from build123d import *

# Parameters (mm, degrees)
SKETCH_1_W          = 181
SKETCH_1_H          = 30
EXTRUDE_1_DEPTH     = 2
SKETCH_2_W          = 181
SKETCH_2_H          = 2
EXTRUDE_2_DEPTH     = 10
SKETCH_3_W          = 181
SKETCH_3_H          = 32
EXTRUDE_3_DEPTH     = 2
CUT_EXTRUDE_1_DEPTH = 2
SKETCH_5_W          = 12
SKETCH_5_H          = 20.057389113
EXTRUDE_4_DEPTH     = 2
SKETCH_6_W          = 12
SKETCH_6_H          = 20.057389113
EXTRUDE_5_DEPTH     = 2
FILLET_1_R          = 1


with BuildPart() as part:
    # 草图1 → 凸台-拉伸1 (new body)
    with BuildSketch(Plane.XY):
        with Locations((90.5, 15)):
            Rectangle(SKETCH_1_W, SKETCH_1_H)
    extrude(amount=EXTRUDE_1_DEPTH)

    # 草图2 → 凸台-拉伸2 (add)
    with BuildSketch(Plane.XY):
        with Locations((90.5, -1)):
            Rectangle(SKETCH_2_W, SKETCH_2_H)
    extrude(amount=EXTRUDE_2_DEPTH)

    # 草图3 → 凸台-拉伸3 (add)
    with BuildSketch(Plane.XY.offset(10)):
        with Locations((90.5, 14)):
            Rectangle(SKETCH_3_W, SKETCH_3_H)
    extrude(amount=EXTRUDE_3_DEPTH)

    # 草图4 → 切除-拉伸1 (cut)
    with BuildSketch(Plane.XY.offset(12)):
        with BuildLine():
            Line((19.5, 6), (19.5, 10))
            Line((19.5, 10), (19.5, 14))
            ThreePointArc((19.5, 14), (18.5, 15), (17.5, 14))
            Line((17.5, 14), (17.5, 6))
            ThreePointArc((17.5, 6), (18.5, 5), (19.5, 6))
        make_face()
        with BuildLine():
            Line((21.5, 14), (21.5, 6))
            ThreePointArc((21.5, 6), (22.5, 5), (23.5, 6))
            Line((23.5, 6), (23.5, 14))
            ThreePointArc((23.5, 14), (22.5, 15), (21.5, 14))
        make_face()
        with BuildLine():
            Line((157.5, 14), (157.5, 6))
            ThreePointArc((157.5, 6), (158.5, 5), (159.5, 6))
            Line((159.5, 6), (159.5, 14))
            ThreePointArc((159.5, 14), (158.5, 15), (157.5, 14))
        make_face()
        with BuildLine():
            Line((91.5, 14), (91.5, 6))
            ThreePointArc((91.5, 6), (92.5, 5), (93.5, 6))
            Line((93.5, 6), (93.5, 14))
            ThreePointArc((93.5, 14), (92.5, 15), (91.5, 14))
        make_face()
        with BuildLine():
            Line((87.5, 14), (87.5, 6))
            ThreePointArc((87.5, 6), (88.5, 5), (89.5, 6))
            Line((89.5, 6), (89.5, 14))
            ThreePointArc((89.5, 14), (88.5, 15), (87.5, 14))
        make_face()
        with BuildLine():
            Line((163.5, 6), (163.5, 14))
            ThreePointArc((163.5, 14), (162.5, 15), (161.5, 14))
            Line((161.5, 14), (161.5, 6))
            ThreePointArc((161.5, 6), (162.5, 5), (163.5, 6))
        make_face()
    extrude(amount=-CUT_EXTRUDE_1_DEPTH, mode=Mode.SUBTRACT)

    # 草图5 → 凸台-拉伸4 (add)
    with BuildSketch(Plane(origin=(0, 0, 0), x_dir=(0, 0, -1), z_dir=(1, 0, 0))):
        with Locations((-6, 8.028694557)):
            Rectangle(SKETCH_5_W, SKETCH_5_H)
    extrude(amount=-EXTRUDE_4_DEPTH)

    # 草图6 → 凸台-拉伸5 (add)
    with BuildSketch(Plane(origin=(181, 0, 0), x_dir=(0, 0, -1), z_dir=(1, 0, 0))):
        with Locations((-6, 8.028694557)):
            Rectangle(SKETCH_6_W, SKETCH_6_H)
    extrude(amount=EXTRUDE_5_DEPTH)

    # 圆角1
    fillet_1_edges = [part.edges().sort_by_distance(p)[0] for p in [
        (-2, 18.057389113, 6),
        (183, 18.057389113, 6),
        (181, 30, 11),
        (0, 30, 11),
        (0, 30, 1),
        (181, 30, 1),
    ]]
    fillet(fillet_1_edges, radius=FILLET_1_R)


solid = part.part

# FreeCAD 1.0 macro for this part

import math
import FreeCAD as App
import Part
import Sketcher
from FreeCAD import Vector
Q = App.Units.Quantity


def edges_at(feature, points):
    """Names of the edges that pass closest to the given points."""
    edges = feature.Shape.Edges
    near = lambda p: min(range(len(edges)), key=lambda i: edges[i].distToShape(Part.Vertex(*p))[0])
    return sorted({f"Edge{near(p) + 1}" for p in points})

doc = App.newDocument("Part")
body = doc.addObject("PartDesign::Body", "Body")

# Sketch on XY plane
sketch1 = body.newObject("Sketcher::SketchObject", "Sketch")
sketch1.AttachmentSupport = (doc.getObject("XY_Plane"), [""])
sketch1.MapMode = "FlatFace"
sketch1.addGeometry(Part.LineSegment(Vector(0, 30, 0), Vector(0, 0, 0)), False)
sketch1.addGeometry(Part.LineSegment(Vector(0, 0, 0), Vector(181, 0, 0)), False)
sketch1.addGeometry(Part.LineSegment(Vector(181, 0, 0), Vector(181, 30, 0)), False)
sketch1.addGeometry(Part.LineSegment(Vector(181, 30, 0), Vector(0, 30, 0)), False)
sketch1.addConstraint(Sketcher.Constraint("Coincident", 0, 2, 1, 1))
sketch1.addConstraint(Sketcher.Constraint("Coincident", 1, 2, 2, 1))
sketch1.addConstraint(Sketcher.Constraint("Coincident", 2, 2, 3, 1))
sketch1.addConstraint(Sketcher.Constraint("Coincident", 3, 2, 0, 1))
sketch1.addConstraint(Sketcher.Constraint("Vertical", 0))
sketch1.addConstraint(Sketcher.Constraint("Horizontal", 1))
sketch1.addConstraint(Sketcher.Constraint("Vertical", 2))
sketch1.addConstraint(Sketcher.Constraint("Horizontal", 3))
sketch1.addConstraint(Sketcher.Constraint("Coincident", 0, 2, -1, 1))
sketch1.addConstraint(Sketcher.Constraint("DistanceX", 1, 1, 1, 2, Q("181 mm")))
sketch1.addConstraint(Sketcher.Constraint("DistanceY", 0, 2, 0, 1, Q("30 mm")))
pad1 = body.newObject("PartDesign::Pad", "Pad")
pad1.Profile = sketch1
pad1.Length = 2

# Sketch on XY plane
sketch2 = body.newObject("Sketcher::SketchObject", "Sketch001")
sketch2.AttachmentSupport = (doc.getObject("XY_Plane"), [""])
sketch2.MapMode = "FlatFace"
sketch2.addGeometry(Part.LineSegment(Vector(0, 0, 0), Vector(0, -2, 0)), False)
sketch2.addGeometry(Part.LineSegment(Vector(0, -2, 0), Vector(181, -2, 0)), False)
sketch2.addGeometry(Part.LineSegment(Vector(181, -2, 0), Vector(181, 0, 0)), False)
sketch2.addGeometry(Part.LineSegment(Vector(181, 0, 0), Vector(0, 0, 0)), False)
sketch2.addConstraint(Sketcher.Constraint("Coincident", 0, 2, 1, 1))
sketch2.addConstraint(Sketcher.Constraint("Coincident", 1, 2, 2, 1))
sketch2.addConstraint(Sketcher.Constraint("Coincident", 2, 2, 3, 1))
sketch2.addConstraint(Sketcher.Constraint("Coincident", 3, 2, 0, 1))
sketch2.addConstraint(Sketcher.Constraint("Vertical", 0))
sketch2.addConstraint(Sketcher.Constraint("Horizontal", 1))
sketch2.addConstraint(Sketcher.Constraint("Vertical", 2))
sketch2.addConstraint(Sketcher.Constraint("Horizontal", 3))
sketch2.addConstraint(Sketcher.Constraint("Coincident", 3, 2, -1, 1))
sketch2.addConstraint(Sketcher.Constraint("DistanceX", 1, 1, 1, 2, Q("181 mm")))
sketch2.addConstraint(Sketcher.Constraint("DistanceY", 0, 2, 0, 1, Q("2 mm")))
pad2 = body.newObject("PartDesign::Pad", "Pad001")
pad2.Profile = sketch2
pad2.Length = 10

# Sketch on XY plane
sketch3 = body.newObject("Sketcher::SketchObject", "Sketch002")
sketch3.AttachmentSupport = (doc.getObject("XY_Plane"), [""])
sketch3.MapMode = "FlatFace"
sketch3.AttachmentOffset = App.Placement(Vector(0, 0, 10), App.Rotation())
sketch3.addGeometry(Part.LineSegment(Vector(0, 30, 0), Vector(0, -2, 0)), False)
sketch3.addGeometry(Part.LineSegment(Vector(0, -2, 0), Vector(181, -2, 0)), False)
sketch3.addGeometry(Part.LineSegment(Vector(181, -2, 0), Vector(181, 30, 0)), False)
sketch3.addGeometry(Part.LineSegment(Vector(181, 30, 0), Vector(0, 30, 0)), False)
sketch3.addConstraint(Sketcher.Constraint("Coincident", 0, 2, 1, 1))
sketch3.addConstraint(Sketcher.Constraint("Coincident", 1, 2, 2, 1))
sketch3.addConstraint(Sketcher.Constraint("Coincident", 2, 2, 3, 1))
sketch3.addConstraint(Sketcher.Constraint("Coincident", 3, 2, 0, 1))
sketch3.addConstraint(Sketcher.Constraint("Vertical", 0))
sketch3.addConstraint(Sketcher.Constraint("Horizontal", 1))
sketch3.addConstraint(Sketcher.Constraint("Vertical", 2))
sketch3.addConstraint(Sketcher.Constraint("Horizontal", 3))
sketch3.addConstraint(Sketcher.Constraint("PointOnObject", 0, 2, -2))
sketch3.addConstraint(Sketcher.Constraint("DistanceX", 1, 1, 1, 2, Q("181 mm")))
sketch3.addConstraint(Sketcher.Constraint("DistanceY", 0, 2, 0, 1, Q("32 mm")))
sketch3.addConstraint(Sketcher.Constraint("DistanceY", 0, 2, -1, 1, Q("2 mm")))
pad3 = body.newObject("PartDesign::Pad", "Pad002")
pad3.Profile = sketch3
pad3.Length = 2

# Sketch on XY plane
sketch4 = body.newObject("Sketcher::SketchObject", "Sketch003")
sketch4.AttachmentSupport = (doc.getObject("XY_Plane"), [""])
sketch4.MapMode = "FlatFace"
sketch4.AttachmentOffset = App.Placement(Vector(0, 0, 12), App.Rotation())
sketch4.addGeometry(Part.LineSegment(Vector(19.5, 6, 0), Vector(19.5, 14, 0)), False)
sketch4.addGeometry(Part.ArcOfCircle(Part.Circle(Vector(18.5, 14, 0), Vector(0, 0, 1), 1), math.radians(0), math.radians(180)), False)
sketch4.addGeometry(Part.LineSegment(Vector(17.5, 14, 0), Vector(17.5, 6, 0)), False)
sketch4.addGeometry(Part.ArcOfCircle(Part.Circle(Vector(18.5, 6, 0), Vector(0, 0, 1), 1), math.radians(180), math.radians(360)), False)
sketch4.addGeometry(Part.LineSegment(Vector(21.5, 14, 0), Vector(21.5, 6, 0)), False)
sketch4.addGeometry(Part.ArcOfCircle(Part.Circle(Vector(22.5, 6, 0), Vector(0, 0, 1), 1), math.radians(180), math.radians(360)), False)
sketch4.addGeometry(Part.LineSegment(Vector(23.5, 6, 0), Vector(23.5, 14, 0)), False)
sketch4.addGeometry(Part.ArcOfCircle(Part.Circle(Vector(22.5, 14, 0), Vector(0, 0, 1), 1), math.radians(0), math.radians(180)), False)
sketch4.addGeometry(Part.LineSegment(Vector(157.5, 14, 0), Vector(157.5, 6, 0)), False)
sketch4.addGeometry(Part.ArcOfCircle(Part.Circle(Vector(158.5, 6, 0), Vector(0, 0, 1), 1), math.radians(180), math.radians(360)), False)
sketch4.addGeometry(Part.LineSegment(Vector(159.5, 6, 0), Vector(159.5, 14, 0)), False)
sketch4.addGeometry(Part.ArcOfCircle(Part.Circle(Vector(158.5, 14, 0), Vector(0, 0, 1), 1), math.radians(0), math.radians(180)), False)
sketch4.addGeometry(Part.LineSegment(Vector(91.5, 14, 0), Vector(91.5, 6, 0)), False)
sketch4.addGeometry(Part.ArcOfCircle(Part.Circle(Vector(92.5, 6, 0), Vector(0, 0, 1), 1), math.radians(180), math.radians(360)), False)
sketch4.addGeometry(Part.LineSegment(Vector(93.5, 6, 0), Vector(93.5, 14, 0)), False)
sketch4.addGeometry(Part.ArcOfCircle(Part.Circle(Vector(92.5, 14, 0), Vector(0, 0, 1), 1), math.radians(0), math.radians(180)), False)
sketch4.addGeometry(Part.LineSegment(Vector(87.5, 14, 0), Vector(87.5, 6, 0)), False)
sketch4.addGeometry(Part.ArcOfCircle(Part.Circle(Vector(88.5, 6, 0), Vector(0, 0, 1), 1), math.radians(180), math.radians(360)), False)
sketch4.addGeometry(Part.LineSegment(Vector(89.5, 6, 0), Vector(89.5, 14, 0)), False)
sketch4.addGeometry(Part.ArcOfCircle(Part.Circle(Vector(88.5, 14, 0), Vector(0, 0, 1), 1), math.radians(0), math.radians(180)), False)
sketch4.addGeometry(Part.LineSegment(Vector(163.5, 6, 0), Vector(163.5, 14, 0)), False)
sketch4.addGeometry(Part.ArcOfCircle(Part.Circle(Vector(162.5, 14, 0), Vector(0, 0, 1), 1), math.radians(0), math.radians(180)), False)
sketch4.addGeometry(Part.LineSegment(Vector(161.5, 14, 0), Vector(161.5, 6, 0)), False)
sketch4.addGeometry(Part.ArcOfCircle(Part.Circle(Vector(162.5, 6, 0), Vector(0, 0, 1), 1), math.radians(180), math.radians(360)), False)
sketch4.addConstraint(Sketcher.Constraint("Tangent", 0, 2, 1, 1))
sketch4.addConstraint(Sketcher.Constraint("Tangent", 1, 2, 2, 1))
sketch4.addConstraint(Sketcher.Constraint("Tangent", 2, 2, 3, 1))
sketch4.addConstraint(Sketcher.Constraint("Tangent", 3, 2, 0, 1))
sketch4.addConstraint(Sketcher.Constraint("Tangent", 4, 2, 5, 1))
sketch4.addConstraint(Sketcher.Constraint("Tangent", 5, 2, 6, 1))
sketch4.addConstraint(Sketcher.Constraint("Tangent", 6, 2, 7, 1))
sketch4.addConstraint(Sketcher.Constraint("Tangent", 7, 2, 4, 1))
sketch4.addConstraint(Sketcher.Constraint("Tangent", 8, 2, 9, 1))
sketch4.addConstraint(Sketcher.Constraint("Tangent", 9, 2, 10, 1))
sketch4.addConstraint(Sketcher.Constraint("Tangent", 10, 2, 11, 1))
sketch4.addConstraint(Sketcher.Constraint("Tangent", 11, 2, 8, 1))
sketch4.addConstraint(Sketcher.Constraint("Tangent", 12, 2, 13, 1))
sketch4.addConstraint(Sketcher.Constraint("Tangent", 13, 2, 14, 1))
sketch4.addConstraint(Sketcher.Constraint("Tangent", 14, 2, 15, 1))
sketch4.addConstraint(Sketcher.Constraint("Tangent", 15, 2, 12, 1))
sketch4.addConstraint(Sketcher.Constraint("Tangent", 16, 2, 17, 1))
sketch4.addConstraint(Sketcher.Constraint("Tangent", 17, 2, 18, 1))
sketch4.addConstraint(Sketcher.Constraint("Tangent", 18, 2, 19, 1))
sketch4.addConstraint(Sketcher.Constraint("Tangent", 19, 2, 16, 1))
sketch4.addConstraint(Sketcher.Constraint("Tangent", 20, 2, 21, 1))
sketch4.addConstraint(Sketcher.Constraint("Tangent", 21, 2, 22, 1))
sketch4.addConstraint(Sketcher.Constraint("Tangent", 22, 2, 23, 1))
sketch4.addConstraint(Sketcher.Constraint("Tangent", 23, 2, 20, 1))
sketch4.addConstraint(Sketcher.Constraint("Vertical", 0))
sketch4.addConstraint(Sketcher.Constraint("Vertical", 2))
sketch4.addConstraint(Sketcher.Constraint("Vertical", 4))
sketch4.addConstraint(Sketcher.Constraint("Vertical", 6))
sketch4.addConstraint(Sketcher.Constraint("Vertical", 8))
sketch4.addConstraint(Sketcher.Constraint("Vertical", 10))
sketch4.addConstraint(Sketcher.Constraint("Vertical", 12))
sketch4.addConstraint(Sketcher.Constraint("Vertical", 14))
sketch4.addConstraint(Sketcher.Constraint("Vertical", 16))
sketch4.addConstraint(Sketcher.Constraint("Vertical", 18))
sketch4.addConstraint(Sketcher.Constraint("Vertical", 20))
sketch4.addConstraint(Sketcher.Constraint("Vertical", 22))
sketch4.addConstraint(Sketcher.Constraint("Equal", 3, 5))
sketch4.addConstraint(Sketcher.Constraint("Equal", 7, 9))
sketch4.addConstraint(Sketcher.Constraint("Equal", 11, 13))
sketch4.addConstraint(Sketcher.Constraint("Equal", 15, 17))
sketch4.addConstraint(Sketcher.Constraint("Equal", 19, 21))
sketch4.addConstraint(Sketcher.Constraint("Horizontal", 3, 3, 5, 3))
sketch4.addConstraint(Sketcher.Constraint("Horizontal", 1, 3, 7, 3))
sketch4.addConstraint(Sketcher.Constraint("Horizontal", 5, 3, 9, 3))
sketch4.addConstraint(Sketcher.Constraint("Horizontal", 7, 3, 11, 3))
sketch4.addConstraint(Sketcher.Constraint("Horizontal", 9, 3, 13, 3))
sketch4.addConstraint(Sketcher.Constraint("Horizontal", 11, 3, 15, 3))
sketch4.addConstraint(Sketcher.Constraint("Horizontal", 13, 3, 17, 3))
sketch4.addConstraint(Sketcher.Constraint("Horizontal", 15, 3, 19, 3))
sketch4.addConstraint(Sketcher.Constraint("Horizontal", 19, 3, 21, 3))
sketch4.addConstraint(Sketcher.Constraint("Horizontal", 17, 3, 23, 3))
sketch4.addConstraint(Sketcher.Constraint("Radius", 1, Q("1 mm")))
sketch4.addConstraint(Sketcher.Constraint("DistanceY", 0, 1, 0, 2, Q("8 mm")))
sketch4.addConstraint(Sketcher.Constraint("DistanceY", -1, 1, 1, 3, Q("14 mm")))
sketch4.addConstraint(Sketcher.Constraint("DistanceX", 3, 3, 5, 3, Q("4 mm")))
sketch4.addConstraint(Sketcher.Constraint("DistanceX", 5, 3, 9, 3, Q("136 mm")))
sketch4.addConstraint(Sketcher.Constraint("DistanceX", 13, 3, 9, 3, Q("66 mm")))
sketch4.addConstraint(Sketcher.Constraint("DistanceX", 17, 3, 13, 3, Q("4 mm")))
sketch4.addConstraint(Sketcher.Constraint("DistanceX", 11, 3, 21, 3, Q("4 mm")))
sketch4.addConstraint(Sketcher.Constraint("DistanceX", -1, 1, 1, 3, Q("18.5 mm")))
pocket1 = body.newObject("PartDesign::Pocket", "Pocket")
pocket1.Profile = sketch4
pocket1.Length = 2

# Sketch on YZ plane
sketch5 = body.newObject("Sketcher::SketchObject", "Sketch004")
sketch5.AttachmentSupport = (doc.getObject("YZ_Plane"), [""])
sketch5.MapMode = "FlatFace"
sketch5.addGeometry(Part.LineSegment(Vector(18, 12, 0), Vector(-2, 12, 0)), False)
sketch5.addGeometry(Part.LineSegment(Vector(-2, 12, 0), Vector(-2, 0, 0)), False)
sketch5.addGeometry(Part.LineSegment(Vector(-2, 0, 0), Vector(18, 0, 0)), False)
sketch5.addGeometry(Part.LineSegment(Vector(18, 0, 0), Vector(18, 12, 0)), False)
sketch5.addConstraint(Sketcher.Constraint("Coincident", 0, 2, 1, 1))
sketch5.addConstraint(Sketcher.Constraint("Coincident", 1, 2, 2, 1))
sketch5.addConstraint(Sketcher.Constraint("Coincident", 2, 2, 3, 1))
sketch5.addConstraint(Sketcher.Constraint("Coincident", 3, 2, 0, 1))
sketch5.addConstraint(Sketcher.Constraint("Horizontal", 0))
sketch5.addConstraint(Sketcher.Constraint("Vertical", 1))
sketch5.addConstraint(Sketcher.Constraint("Horizontal", 2))
sketch5.addConstraint(Sketcher.Constraint("Vertical", 3))
sketch5.addConstraint(Sketcher.Constraint("PointOnObject", 1, 2, -1))
sketch5.addConstraint(Sketcher.Constraint("DistanceY", 1, 2, 1, 1, Q("12 mm")))
sketch5.addConstraint(Sketcher.Constraint("DistanceX", 0, 2, -1, 1, Q("2 mm")))
sketch5.addConstraint(Sketcher.Constraint("DistanceX", 0, 2, 0, 1, Q("20.057389 mm")))
pad4 = body.newObject("PartDesign::Pad", "Pad003")
pad4.Profile = sketch5
pad4.Length = 2
pad4.Reversed = True

# Sketch on YZ plane
sketch6 = body.newObject("Sketcher::SketchObject", "Sketch005")
sketch6.AttachmentSupport = (doc.getObject("YZ_Plane"), [""])
sketch6.MapMode = "FlatFace"
sketch6.AttachmentOffset = App.Placement(Vector(0, 0, 181), App.Rotation())
sketch6.addGeometry(Part.LineSegment(Vector(18, 12, 0), Vector(-2, 12, 0)), False)
sketch6.addGeometry(Part.LineSegment(Vector(-2, 12, 0), Vector(-2, 0, 0)), False)
sketch6.addGeometry(Part.LineSegment(Vector(-2, 0, 0), Vector(18, 0, 0)), False)
sketch6.addGeometry(Part.LineSegment(Vector(18, 0, 0), Vector(18, 12, 0)), False)
sketch6.addConstraint(Sketcher.Constraint("Coincident", 0, 2, 1, 1))
sketch6.addConstraint(Sketcher.Constraint("Coincident", 1, 2, 2, 1))
sketch6.addConstraint(Sketcher.Constraint("Coincident", 2, 2, 3, 1))
sketch6.addConstraint(Sketcher.Constraint("Coincident", 3, 2, 0, 1))
sketch6.addConstraint(Sketcher.Constraint("Horizontal", 0))
sketch6.addConstraint(Sketcher.Constraint("Vertical", 1))
sketch6.addConstraint(Sketcher.Constraint("Horizontal", 2))
sketch6.addConstraint(Sketcher.Constraint("Vertical", 3))
sketch6.addConstraint(Sketcher.Constraint("PointOnObject", 1, 2, -1))
sketch6.addConstraint(Sketcher.Constraint("DistanceY", 1, 2, 1, 1, Q("12 mm")))
sketch6.addConstraint(Sketcher.Constraint("DistanceX", 0, 2, -1, 1, Q("2 mm")))
sketch6.addConstraint(Sketcher.Constraint("DistanceX", 0, 2, 0, 1, Q("20.057389 mm")))
pad5 = body.newObject("PartDesign::Pad", "Pad004")
pad5.Profile = sketch6
pad5.Length = 2
doc.recompute()

fillet = body.newObject("PartDesign::Fillet", "Fillet")
fillet.Base = (pad5, edges_at(pad5, [
    (-2, 18.057, 6),
    (183, 18.057, 6),
    (181, 30, 11),
    (0, 30, 11),
    (0, 30, 1),
    (181, 30, 1),
]))
fillet.Radius = 1

doc.recompute()
